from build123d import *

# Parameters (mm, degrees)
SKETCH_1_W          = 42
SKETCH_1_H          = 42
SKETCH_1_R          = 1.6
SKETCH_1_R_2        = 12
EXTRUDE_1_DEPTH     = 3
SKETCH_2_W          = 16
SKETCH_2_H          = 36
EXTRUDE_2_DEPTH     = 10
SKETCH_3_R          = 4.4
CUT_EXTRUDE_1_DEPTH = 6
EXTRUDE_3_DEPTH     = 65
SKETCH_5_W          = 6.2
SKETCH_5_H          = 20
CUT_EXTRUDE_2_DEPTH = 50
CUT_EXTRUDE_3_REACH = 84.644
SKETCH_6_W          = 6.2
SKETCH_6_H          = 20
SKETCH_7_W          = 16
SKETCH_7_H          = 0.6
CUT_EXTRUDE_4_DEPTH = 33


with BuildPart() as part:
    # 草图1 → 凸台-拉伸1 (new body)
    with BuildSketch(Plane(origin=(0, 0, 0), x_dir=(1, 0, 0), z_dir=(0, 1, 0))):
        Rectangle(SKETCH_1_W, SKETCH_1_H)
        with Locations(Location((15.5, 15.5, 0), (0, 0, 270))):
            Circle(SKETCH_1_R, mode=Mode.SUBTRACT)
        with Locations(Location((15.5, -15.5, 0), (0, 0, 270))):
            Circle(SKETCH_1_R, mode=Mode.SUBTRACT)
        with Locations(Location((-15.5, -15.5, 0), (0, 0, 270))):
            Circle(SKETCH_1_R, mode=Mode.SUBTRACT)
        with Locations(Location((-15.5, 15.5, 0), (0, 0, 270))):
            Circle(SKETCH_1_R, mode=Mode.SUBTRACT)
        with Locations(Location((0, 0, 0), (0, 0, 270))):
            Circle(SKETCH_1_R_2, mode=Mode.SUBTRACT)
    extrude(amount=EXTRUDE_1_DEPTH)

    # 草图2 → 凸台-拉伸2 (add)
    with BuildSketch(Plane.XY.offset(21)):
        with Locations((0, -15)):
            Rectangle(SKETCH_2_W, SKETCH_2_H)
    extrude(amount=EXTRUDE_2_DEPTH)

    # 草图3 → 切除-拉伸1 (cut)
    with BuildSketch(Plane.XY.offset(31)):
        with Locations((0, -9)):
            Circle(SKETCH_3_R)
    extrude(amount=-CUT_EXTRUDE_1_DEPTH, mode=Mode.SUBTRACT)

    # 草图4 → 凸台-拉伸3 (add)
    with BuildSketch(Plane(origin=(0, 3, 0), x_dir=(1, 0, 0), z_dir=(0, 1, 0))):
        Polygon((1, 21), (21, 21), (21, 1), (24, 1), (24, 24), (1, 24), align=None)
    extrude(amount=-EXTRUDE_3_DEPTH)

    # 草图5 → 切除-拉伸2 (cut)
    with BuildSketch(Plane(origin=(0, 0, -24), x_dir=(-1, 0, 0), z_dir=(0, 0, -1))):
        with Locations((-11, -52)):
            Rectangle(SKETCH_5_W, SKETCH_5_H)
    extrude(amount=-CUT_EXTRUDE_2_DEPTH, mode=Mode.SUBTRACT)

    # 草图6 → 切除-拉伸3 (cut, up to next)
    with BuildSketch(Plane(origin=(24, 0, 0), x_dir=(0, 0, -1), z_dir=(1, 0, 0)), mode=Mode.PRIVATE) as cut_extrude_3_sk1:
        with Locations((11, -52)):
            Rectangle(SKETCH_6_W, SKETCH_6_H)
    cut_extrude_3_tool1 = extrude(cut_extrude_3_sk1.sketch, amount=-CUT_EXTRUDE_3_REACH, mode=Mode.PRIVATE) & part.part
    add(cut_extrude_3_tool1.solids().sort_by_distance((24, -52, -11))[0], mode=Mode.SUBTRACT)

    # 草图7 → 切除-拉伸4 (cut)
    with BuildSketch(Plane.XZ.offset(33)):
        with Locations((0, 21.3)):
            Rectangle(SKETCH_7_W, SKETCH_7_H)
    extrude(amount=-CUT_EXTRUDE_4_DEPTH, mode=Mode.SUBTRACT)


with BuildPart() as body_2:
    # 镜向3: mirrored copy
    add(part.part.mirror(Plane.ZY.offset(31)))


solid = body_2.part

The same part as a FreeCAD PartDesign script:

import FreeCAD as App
import Part
import Sketcher
from FreeCAD import Vector

doc = App.newDocument("Part")
body = doc.addObject("PartDesign::Body", "Body")

sketch1 = body.newObject("Sketcher::SketchObject", "Sketch")
sketch1.AttachmentSupport = (doc.getObject("XZ_Plane"), [""])
sketch1.MapMode = "FlatFace"
sketch1.addGeometry(Part.LineSegment(Vector(-21, -21, 0), Vector(-21, 21, 0)), False)
sketch1.addGeometry(Part.LineSegment(Vector(-21, 21, 0), Vector(21, 21, 0)), False)
sketch1.addGeometry(Part.LineSegment(Vector(21, 21, 0), Vector(21, -21, 0)), False)
sketch1.addGeometry(Part.LineSegment(Vector(21, -21, 0), Vector(-21, -21, 0)), False)
sketch1.addGeometry(Part.Circle(Vector(-15.5, 15.5, 0), Vector(0, 0, 1), 1.6), False)
sketch1.addGeometry(Part.Circle(Vector(15.5, 15.5, 0), Vector(0, 0, 1), 1.6), False)
sketch1.addGeometry(Part.Circle(Vector(-15.5, -15.5, 0), Vector(0, 0, 1), 1.6), False)
sketch1.addGeometry(Part.Circle(Vector(0, 0, 0), Vector(0, 0, 1), 12), False)
sketch1.addGeometry(Part.Circle(Vector(15.5, -15.5, 0), Vector(0, 0, 1), 1.6), False)
sketch1.addConstraint(Sketcher.Constraint("Coincident", 0, 2, 1, 1))
sketch1.addConstraint(Sketcher.Constraint("Coincident", 1, 2, 2, 1))
sketch1.addConstraint(Sketcher.Constraint("Coincident", 2, 2, 3, 1))
sketch1.addConstraint(Sketcher.Constraint("Coincident", 3, 2, 0, 1))
sketch1.addConstraint(Sketcher.Constraint("Vertical", 0))
sketch1.addConstraint(Sketcher.Constraint("Horizontal", 1))
sketch1.addConstraint(Sketcher.Constraint("Vertical", 2))
sketch1.addConstraint(Sketcher.Constraint("Horizontal", 3))
sketch1.addConstraint(Sketcher.Constraint("Coincident", 7, 3, -1, 1))
sketch1.addConstraint(Sketcher.Constraint("Equal", 4, 5))
sketch1.addConstraint(Sketcher.Constraint("Equal", 5, 6))
sketch1.addConstraint(Sketcher.Constraint("Equal", 6, 8))
sketch1.addConstraint(Sketcher.Constraint("Symmetric", 5, 3, 6, 3, -1, 1))
sketch1.addConstraint(Sketcher.Constraint("Symmetric", 4, 3, 8, 3, -1, 1))
sketch1.addConstraint(Sketcher.Constraint("Symmetric", 0, 2, 2, 2, -1, 1))
sketch1.addConstraint(Sketcher.Constraint("Symmetric", 4, 3, 5, 3, -2))
sketch1.addConstraint(Sketcher.Constraint("Equal", 3, 0))
sketch1.addConstraint(Sketcher.Constraint("Diameter", 7, 24.0))
sketch1.addConstraint(Sketcher.Constraint("Diameter", 4, 3.2))
sketch1.addConstraint(Sketcher.Constraint("DistanceX", 1, 1, 1, 2, 42.0))
sketch1.addConstraint(Sketcher.Constraint("DistanceX", 4, 3, 5, 3, 31.0))
sketch1.addConstraint(Sketcher.Constraint("DistanceY", 6, 3, 4, 3, 31.0))
pad1 = body.newObject("PartDesign::Pad", "Pad")
pad1.Profile = sketch1
pad1.Length = 3
pad1.Reversed = True

sketch2 = body.newObject("Sketcher::SketchObject", "Sketch001")
sketch2.AttachmentSupport = (doc.getObject("XY_Plane"), [""])
sketch2.MapMode = "FlatFace"
sketch2.AttachmentOffset = App.Placement(Vector(0, 0, 21), App.Rotation())
sketch2.addGeometry(Part.LineSegment(Vector(-8, 3, 0), Vector(-8, -33, 0)), False)
sketch2.addGeometry(Part.LineSegment(Vector(-8, -33, 0), Vector(8, -33, 0)), False)
sketch2.addGeometry(Part.LineSegment(Vector(8, -33, 0), Vector(8, 3, 0)), False)
sketch2.addGeometry(Part.LineSegment(Vector(8, 3, 0), Vector(-8, 3, 0)), False)
sketch2.addConstraint(Sketcher.Constraint("Coincident", 0, 2, 1, 1))
sketch2.addConstraint(Sketcher.Constraint("Coincident", 1, 2, 2, 1))
sketch2.addConstraint(Sketcher.Constraint("Coincident", 2, 2, 3, 1))
sketch2.addConstraint(Sketcher.Constraint("Coincident", 3, 2, 0, 1))
sketch2.addConstraint(Sketcher.Constraint("Vertical", 0))
sketch2.addConstraint(Sketcher.Constraint("Horizontal", 1))
sketch2.addConstraint(Sketcher.Constraint("Vertical", 2))
sketch2.addConstraint(Sketcher.Constraint("Horizontal", 3))
sketch2.addConstraint(Sketcher.Constraint("DistanceX", 1, 1, 1, 2, 16.0))
sketch2.addConstraint(Sketcher.Constraint("DistanceY", 0, 2, 0, 1, 36.0))
sketch2.addConstraint(Sketcher.Constraint("DistanceX", 0, 2, -1, 1, 8.0))
sketch2.addConstraint(Sketcher.Constraint("DistanceY", 0, 2, -1, 1, 33.0))
pad2 = body.newObject("PartDesign::Pad", "Pad001")
pad2.Profile = sketch2
pad2.Length = 10

sketch3 = body.newObject("Sketcher::SketchObject", "Sketch002")
sketch3.AttachmentSupport = (doc.getObject("XY_Plane"), [""])
sketch3.MapMode = "FlatFace"
sketch3.AttachmentOffset = App.Placement(Vector(0, 0, 31), App.Rotation())
sketch3.addGeometry(Part.Circle(Vector(0, -9, 0), Vector(0, 0, 1), 4.4), False)
sketch3.addConstraint(Sketcher.Constraint("PointOnObject", 0, 3, -2))
sketch3.addConstraint(Sketcher.Constraint("Diameter", 0, 8.8))
sketch3.addConstraint(Sketcher.Constraint("DistanceY", 0, 3, -1, 1, 9.0))
pocket1 = body.newObject("PartDesign::Pocket", "Pocket")
pocket1.Profile = sketch3
pocket1.Length = 6

sketch4 = body.newObject("Sketcher::SketchObject", "Sketch003")
sketch4.AttachmentSupport = (doc.getObject("XZ_Plane"), [""])
sketch4.MapMode = "FlatFace"
sketch4.AttachmentOffset = App.Placement(Vector(0, 0, -3), App.Rotation())
sketch4.addGeometry(Part.LineSegment(Vector(1, -21, 0), Vector(21, -21, 0)), False)
sketch4.addGeometry(Part.LineSegment(Vector(21, -21, 0), Vector(21, -1, 0)), False)
sketch4.addGeometry(Part.LineSegment(Vector(21, -1, 0), Vector(24, -1, 0)), False)
sketch4.addGeometry(Part.LineSegment(Vector(24, -1, 0), Vector(24, -24, 0)), False)
sketch4.addGeometry(Part.LineSegment(Vector(24, -24, 0), Vector(1, -24, 0)), False)
sketch4.addGeometry(Part.LineSegment(Vector(1, -24, 0), Vector(1, -21, 0)), False)
sketch4.addConstraint(Sketcher.Constraint("Coincident", 0, 2, 1, 1))
sketch4.addConstraint(Sketcher.Constraint("Coincident", 1, 2, 2, 1))
sketch4.addConstraint(Sketcher.Constraint("Coincident", 2, 2, 3, 1))
sketch4.addConstraint(Sketcher.Constraint("Coincident", 3, 2, 4, 1))
sketch4.addConstraint(Sketcher.Constraint("Coincident", 4, 2, 5, 1))
sketch4.addConstraint(Sketcher.Constraint("Coincident", 5, 2, 0, 1))
sketch4.addConstraint(Sketcher.Constraint("Horizontal", 0))
sketch4.addConstraint(Sketcher.Constraint("Vertical", 1))
sketch4.addConstraint(Sketcher.Constraint("Horizontal", 2))
sketch4.addConstraint(Sketcher.Constraint("Vertical", 3))
sketch4.addConstraint(Sketcher.Constraint("Horizontal", 4))
sketch4.addConstraint(Sketcher.Constraint("Vertical", 5))
sketch4.addConstraint(Sketcher.Constraint("Equal", 0, 1))
sketch4.addConstraint(Sketcher.Constraint("Equal", 4, 3))
sketch4.addConstraint(Sketcher.Constraint("DistanceX", 0, 1, 0, 2, 20.0))
sketch4.addConstraint(Sketcher.Constraint("DistanceX", 2, 1, 2, 2, 3.0))
sketch4.addConstraint(Sketcher.Constraint("DistanceX", -1, 1, 0, 2, 21.0))
sketch4.addConstraint(Sketcher.Constraint("DistanceY", 0, 2, -1, 1, 21.0))
pad3 = body.newObject("PartDesign::Pad", "Pad002")
pad3.Profile = sketch4
pad3.Length = 65

sketch5 = body.newObject("Sketcher::SketchObject", "Sketch004")
sketch5.AttachmentSupport = (doc.getObject("XY_Plane"), [""])
sketch5.MapMode = "FlatFace"
sketch5.AttachmentOffset = App.Placement(Vector(0, 0, -24), App.Rotation())
sketch5.addGeometry(Part.LineSegment(Vector(14.1, -42, 0), Vector(14.1, -62, 0)), False)
sketch5.addGeometry(Part.LineSegment(Vector(14.1, -62, 0), Vector(7.9, -62, 0)), False)
sketch5.addGeometry(Part.LineSegment(Vector(7.9, -62, 0), Vector(7.9, -42, 0)), False)
sketch5.addGeometry(Part.LineSegment(Vector(7.9, -42, 0), Vector(14.1, -42, 0)), False)
sketch5.addConstraint(Sketcher.Constraint("Coincident", 0, 2, 1, 1))
sketch5.addConstraint(Sketcher.Constraint("Coincident", 1, 2, 2, 1))
sketch5.addConstraint(Sketcher.Constraint("Coincident", 2, 2, 3, 1))
sketch5.addConstraint(Sketcher.Constraint("Coincident", 3, 2, 0, 1))
sketch5.addConstraint(Sketcher.Constraint("Vertical", 0))
sketch5.addConstraint(Sketcher.Constraint("Horizontal", 1))
sketch5.addConstraint(Sketcher.Constraint("Vertical", 2))
sketch5.addConstraint(Sketcher.Constraint("Horizontal", 3))
sketch5.addConstraint(Sketcher.Constraint("DistanceY", 0, 2, 0, 1, 20.0))
sketch5.addConstraint(Sketcher.Constraint("DistanceX", 1, 2, 1, 1, 6.2))
sketch5.addConstraint(Sketcher.Constraint("DistanceY", 0, 2, -1, 1, 62.0))
sketch5.addConstraint(Sketcher.Constraint("DistanceX", -1, 1, 0, 2, 14.1))
pocket2 = body.newObject("PartDesign::Pocket", "Pocket001")
pocket2.Profile = sketch5
pocket2.Length = 50
pocket2.Reversed = True

sketch6 = body.newObject("Sketcher::SketchObject", "Sketch005")
sketch6.AttachmentSupport = (doc.getObject("YZ_Plane"), [""])
sketch6.MapMode = "FlatFace"
sketch6.AttachmentOffset = App.Placement(Vector(0, 0, 24), App.Rotation())
sketch6.addGeometry(Part.LineSegment(Vector(-42, -7.9, 0), Vector(-62, -7.9, 0)), False)
sketch6.addGeometry(Part.LineSegment(Vector(-62, -7.9, 0), Vector(-62, -14.1, 0)), False)
sketch6.addGeometry(Part.LineSegment(Vector(-62, -14.1, 0), Vector(-42, -14.1, 0)), False)
sketch6.addGeometry(Part.LineSegment(Vector(-42, -14.1, 0), Vector(-42, -7.9, 0)), False)
sketch6.addConstraint(Sketcher.Constraint("Coincident", 0, 2, 1, 1))
sketch6.addConstraint(Sketcher.Constraint("Coincident", 1, 2, 2, 1))
sketch6.addConstraint(Sketcher.Constraint("Coincident", 2, 2, 3, 1))
sketch6.addConstraint(Sketcher.Constraint("Coincident", 3, 2, 0, 1))
sketch6.addConstraint(Sketcher.Constraint("Horizontal", 0))
sketch6.addConstraint(Sketcher.Constraint("Vertical", 1))
sketch6.addConstraint(Sketcher.Constraint("Horizontal", 2))
sketch6.addConstraint(Sketcher.Constraint("Vertical", 3))
sketch6.addConstraint(Sketcher.Constraint("DistanceX", 0, 2, 0, 1, 20.0))
sketch6.addConstraint(Sketcher.Constraint("DistanceY", 1, 2, 1, 1, 6.2))
sketch6.addConstraint(Sketcher.Constraint("DistanceX", 0, 2, -1, 1, 62.0))
sketch6.addConstraint(Sketcher.Constraint("DistanceY", 0, 2, -1, 1, 7.9))
pocket3 = body.newObject("PartDesign::Pocket", "Pocket002")
pocket3.Profile = sketch6
pocket3.Type = "UpToFirst"

sketch7 = body.newObject("Sketcher::SketchObject", "Sketch006")
sketch7.AttachmentSupport = (doc.getObject("XZ_Plane"), [""])
sketch7.MapMode = "FlatFace"
sketch7.AttachmentOffset = App.Placement(Vector(0, 0, 33), App.Rotation())
sketch7.addGeometry(Part.LineSegment(Vector(-8, 21.6, 0), Vector(-8, 21, 0)), False)
sketch7.addGeometry(Part.LineSegment(Vector(-8, 21, 0), Vector(8, 21, 0)), False)
sketch7.addGeometry(Part.LineSegment(Vector(8, 21, 0), Vector(8, 21.6, 0)), False)
sketch7.addGeometry(Part.LineSegment(Vector(8, 21.6, 0), Vector(-8, 21.6, 0)), False)
sketch7.addConstraint(Sketcher.Constraint("Coincident", 0, 2, 1, 1))
sketch7.addConstraint(Sketcher.Constraint("Coincident", 1, 2, 2, 1))
sketch7.addConstraint(Sketcher.Constraint("Coincident", 2, 2, 3, 1))
sketch7.addConstraint(Sketcher.Constraint("Coincident", 3, 2, 0, 1))
sketch7.addConstraint(Sketcher.Constraint("Vertical", 0))
sketch7.addConstraint(Sketcher.Constraint("Horizontal", 1))
sketch7.addConstraint(Sketcher.Constraint("Vertical", 2))
sketch7.addConstraint(Sketcher.Constraint("Horizontal", 3))
sketch7.addConstraint(Sketcher.Constraint("DistanceX", 1, 1, 1, 2, 16.0))
sketch7.addConstraint(Sketcher.Constraint("DistanceY", 0, 2, 0, 1, 0.6))
sketch7.addConstraint(Sketcher.Constraint("DistanceX", 0, 2, -1, 1, 8.0))
sketch7.addConstraint(Sketcher.Constraint("DistanceY", -1, 1, 0, 2, 21.0))
pocket4 = body.newObject("PartDesign::Pocket", "Pocket003")
pocket4.Profile = sketch7
pocket4.Length = 33
body2 = doc.addObject("PartDesign::Body", "Body001")
doc.recompute()

mirroring = doc.addObject("Part::Mirroring", "Mirroring")
mirroring.Source = body
mirroring.Base = Vector(-31, 0, 0)
mirroring.Normal = Vector(-1, 0, 0)
body2.BaseFeature = mirroring
doc.recompute()
body.Visibility = False
mirroring.Visibility = False

doc.recompute()
